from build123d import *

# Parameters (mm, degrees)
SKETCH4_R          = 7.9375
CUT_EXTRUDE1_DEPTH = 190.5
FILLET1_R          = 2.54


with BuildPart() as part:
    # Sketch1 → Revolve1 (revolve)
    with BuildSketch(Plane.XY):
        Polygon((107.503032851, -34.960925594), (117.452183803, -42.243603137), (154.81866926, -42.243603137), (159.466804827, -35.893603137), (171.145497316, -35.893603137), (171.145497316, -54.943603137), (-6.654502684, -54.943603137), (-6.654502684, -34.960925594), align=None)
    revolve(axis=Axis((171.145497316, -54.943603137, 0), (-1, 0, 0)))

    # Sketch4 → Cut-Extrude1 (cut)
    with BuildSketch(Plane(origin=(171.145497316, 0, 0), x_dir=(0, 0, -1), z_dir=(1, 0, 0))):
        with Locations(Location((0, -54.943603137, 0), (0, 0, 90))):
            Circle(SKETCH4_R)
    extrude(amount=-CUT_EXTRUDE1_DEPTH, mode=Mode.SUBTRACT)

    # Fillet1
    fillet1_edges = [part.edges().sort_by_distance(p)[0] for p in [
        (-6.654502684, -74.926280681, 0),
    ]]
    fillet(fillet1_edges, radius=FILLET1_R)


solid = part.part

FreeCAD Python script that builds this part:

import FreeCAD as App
import Part
import Sketcher
Q = App.Units.Quantity


def edges_at(feature, points):
    """Names of the edges that pass closest to the given points."""
    edges = feature.Shape.Edges
    near = lambda p: min(range(len(edges)), key=lambda i: edges[i].distToShape(Part.Vertex(*p))[0])
    return sorted({f"Edge{near(p) + 1}" for p in points})


def add_polygon(sketch, points):
    """Adds a closed chain of lines whose ends are joined by coincident constraints."""
    first, n = sketch.GeometryCount, len(points)
    for a, b in zip(points, points[1:] + points[:1]):
        sketch.addGeometry(Part.LineSegment(App.Vector(*a, 0), App.Vector(*b, 0)), False)
    for i in range(n):
        sketch.addConstraint(Sketcher.Constraint("Coincident", first + i, 2, first + (i + 1) % n, 1))

doc = App.newDocument("Part")
params = doc.addObject("Spreadsheet::Sheet", "Params")
for row, (alias, value) in enumerate([
    ("sketch1_width", "7 in"),
    ("sketch1_height", "0.75 in"),
    ("revolution_angle", "360 deg"),
    ("sketch2_diameter", "0.625 in"),
    ("pocket1_length", "7.5 in"),
    ("fillet_radius", "0.1 in"),
], start=1):
    params.set(f"A{row}", alias)
    params.set(f"B{row}", "=" + value)
    params.setAlias(f"B{row}", alias)

body = doc.addObject("PartDesign::Body", "Body")

# Sketch on XY plane
sketch1 = doc.addObject("Sketcher::SketchObject", "Sketch")
body.addObject(sketch1)
sketch1.AttachmentSupport = (doc.XY_Plane, [""])
sketch1.MapMode = "FlatFace"
add_polygon(sketch1, [(117, -42), (108, -35), (-7, -35), (-7, -55), (171, -55), (171, -36), (159, -36), (155, -42)])  # lines 0-7
sketch1.addGeometry(Part.LineSegment(App.Vector(171, -55, 0), App.Vector(-7, -55, 0)), True)  # axis
sketch1.addConstraint([
    Sketcher.Constraint("Horizontal", 1),
    Sketcher.Constraint("Vertical", 2),
    Sketcher.Constraint("Horizontal", 3),
    Sketcher.Constraint("Vertical", 4),
    Sketcher.Constraint("Horizontal", 5),
    Sketcher.Constraint("Horizontal", 7),
    Sketcher.Constraint("Horizontal", 8),
    Sketcher.Constraint("Coincident", 8, 1, 3, 2),
    Sketcher.Constraint("Perpendicular", 0, 6),
    Sketcher.Constraint("Vertical", 1, 2, 8, 2),
    Sketcher.Constraint("DistanceX", 3, 1, 3, 2, Q("7 in")),
    Sketcher.Constraint("DistanceY", 4, 1, 4, 2, Q("0.75 in")),
    Sketcher.Constraint("DistanceY", 3, 2, 6, 2, Q("0.5 in")),
    Sketcher.Constraint("Distance", 0, 12.329761),
    Sketcher.Constraint("DistanceX", 1, 2, 1, 1, 114.157536),
    Sketcher.Constraint("DistanceX", 5, 2, 5, 1, 11.678692),
    Sketcher.Constraint("DistanceX", 7, 2, 7, 1, 37.366485),
    Sketcher.Constraint("DistanceX", -1, 1, 6, 2, 154.818669),
    Sketcher.Constraint("DistanceY", 0, 2, -1, 1, 34.960926),
])
sketch1.setExpression("Constraints[18]", "Params.sketch1_width")
sketch1.setExpression("Constraints[19]", "Params.sketch1_height")
revolution = doc.addObject("PartDesign::Revolution", "Revolution")
body.addObject(revolution)
revolution.Profile = sketch1
revolution.ReferenceAxis = (sketch1, ["Axis0"])
revolution.setExpression("Angle", "Params.revolution_angle")

# Sketch on YZ plane
sketch2 = doc.addObject("Sketcher::SketchObject", "Sketch001")
body.addObject(sketch2)
sketch2.AttachmentSupport = (doc.YZ_Plane, [""])
sketch2.MapMode = "FlatFace"
sketch2.AttachmentOffset = App.Placement(App.Vector(0, 0, 171.145497), App.Rotation())
sketch2.addGeometry(Part.Circle(App.Vector(-55, 0, 0), App.Vector(0, 0, 1), 8), False)
sketch2.addConstraint([
    Sketcher.Constraint("PointOnObject", 0, 3, -1),
    Sketcher.Constraint("Diameter", 0, Q("0.625 in")),
    Sketcher.Constraint("DistanceX", 0, 3, -1, 1, 54.943603),
])
sketch2.setExpression("Constraints[1]", "Params.sketch2_diameter")
pocket1 = doc.addObject("PartDesign::Pocket", "Pocket")
body.addObject(pocket1)
pocket1.Profile = sketch2
pocket1.setExpression("Length", "Params.pocket1_length")
doc.recompute()

fillet = doc.addObject("PartDesign::Fillet", "Fillet")
body.addObject(fillet)
fillet.Base = (pocket1, edges_at(pocket1, [(-6.655, -74.926, 0)]))
fillet.setExpression("Radius", "Params.fillet_radius")

doc.recompute()
